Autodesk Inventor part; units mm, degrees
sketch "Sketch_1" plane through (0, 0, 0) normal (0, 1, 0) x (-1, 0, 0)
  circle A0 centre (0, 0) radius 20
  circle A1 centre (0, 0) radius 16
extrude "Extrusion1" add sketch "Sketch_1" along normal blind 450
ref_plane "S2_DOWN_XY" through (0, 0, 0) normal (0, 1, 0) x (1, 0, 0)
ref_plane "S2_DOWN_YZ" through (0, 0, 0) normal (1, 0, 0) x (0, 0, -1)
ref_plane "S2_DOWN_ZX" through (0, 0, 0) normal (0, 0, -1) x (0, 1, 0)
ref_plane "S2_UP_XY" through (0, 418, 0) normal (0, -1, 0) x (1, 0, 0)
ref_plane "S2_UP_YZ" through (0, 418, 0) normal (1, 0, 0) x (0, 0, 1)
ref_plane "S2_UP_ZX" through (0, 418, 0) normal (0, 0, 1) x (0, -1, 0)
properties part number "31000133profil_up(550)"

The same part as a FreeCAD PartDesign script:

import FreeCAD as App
import Part
import Sketcher

doc = App.newDocument("Part")
body = doc.addObject("PartDesign::Body", "Body")

# Sketch on XZ plane
sketch1 = body.newObject("Sketcher::SketchObject", "Sketch")
sketch1.AttachmentSupport = (doc.getObject("XZ_Plane"), [""])
sketch1.MapMode = "FlatFace"
sketch1.addGeometry(Part.Circle(App.Vector(0, 0, 0), App.Vector(0, 0, 1), 20), False)
sketch1.addGeometry(Part.Circle(App.Vector(0, 0, 0), App.Vector(0, 0, 1), 16), False)
sketch1.addConstraint(Sketcher.Constraint("Coincident", 0, 3, -1, 1))
sketch1.addConstraint(Sketcher.Constraint("Coincident", 1, 3, -1, 1))
sketch1.addConstraint(Sketcher.Constraint("Diameter", 0, 40.0))
sketch1.addConstraint(Sketcher.Constraint("Diameter", 1, 32.0))
pad1 = body.newObject("PartDesign::Pad", "Pad")
pad1.Profile = sketch1
pad1.Length = 450
pad1.Reversed = True

doc.recompute()
